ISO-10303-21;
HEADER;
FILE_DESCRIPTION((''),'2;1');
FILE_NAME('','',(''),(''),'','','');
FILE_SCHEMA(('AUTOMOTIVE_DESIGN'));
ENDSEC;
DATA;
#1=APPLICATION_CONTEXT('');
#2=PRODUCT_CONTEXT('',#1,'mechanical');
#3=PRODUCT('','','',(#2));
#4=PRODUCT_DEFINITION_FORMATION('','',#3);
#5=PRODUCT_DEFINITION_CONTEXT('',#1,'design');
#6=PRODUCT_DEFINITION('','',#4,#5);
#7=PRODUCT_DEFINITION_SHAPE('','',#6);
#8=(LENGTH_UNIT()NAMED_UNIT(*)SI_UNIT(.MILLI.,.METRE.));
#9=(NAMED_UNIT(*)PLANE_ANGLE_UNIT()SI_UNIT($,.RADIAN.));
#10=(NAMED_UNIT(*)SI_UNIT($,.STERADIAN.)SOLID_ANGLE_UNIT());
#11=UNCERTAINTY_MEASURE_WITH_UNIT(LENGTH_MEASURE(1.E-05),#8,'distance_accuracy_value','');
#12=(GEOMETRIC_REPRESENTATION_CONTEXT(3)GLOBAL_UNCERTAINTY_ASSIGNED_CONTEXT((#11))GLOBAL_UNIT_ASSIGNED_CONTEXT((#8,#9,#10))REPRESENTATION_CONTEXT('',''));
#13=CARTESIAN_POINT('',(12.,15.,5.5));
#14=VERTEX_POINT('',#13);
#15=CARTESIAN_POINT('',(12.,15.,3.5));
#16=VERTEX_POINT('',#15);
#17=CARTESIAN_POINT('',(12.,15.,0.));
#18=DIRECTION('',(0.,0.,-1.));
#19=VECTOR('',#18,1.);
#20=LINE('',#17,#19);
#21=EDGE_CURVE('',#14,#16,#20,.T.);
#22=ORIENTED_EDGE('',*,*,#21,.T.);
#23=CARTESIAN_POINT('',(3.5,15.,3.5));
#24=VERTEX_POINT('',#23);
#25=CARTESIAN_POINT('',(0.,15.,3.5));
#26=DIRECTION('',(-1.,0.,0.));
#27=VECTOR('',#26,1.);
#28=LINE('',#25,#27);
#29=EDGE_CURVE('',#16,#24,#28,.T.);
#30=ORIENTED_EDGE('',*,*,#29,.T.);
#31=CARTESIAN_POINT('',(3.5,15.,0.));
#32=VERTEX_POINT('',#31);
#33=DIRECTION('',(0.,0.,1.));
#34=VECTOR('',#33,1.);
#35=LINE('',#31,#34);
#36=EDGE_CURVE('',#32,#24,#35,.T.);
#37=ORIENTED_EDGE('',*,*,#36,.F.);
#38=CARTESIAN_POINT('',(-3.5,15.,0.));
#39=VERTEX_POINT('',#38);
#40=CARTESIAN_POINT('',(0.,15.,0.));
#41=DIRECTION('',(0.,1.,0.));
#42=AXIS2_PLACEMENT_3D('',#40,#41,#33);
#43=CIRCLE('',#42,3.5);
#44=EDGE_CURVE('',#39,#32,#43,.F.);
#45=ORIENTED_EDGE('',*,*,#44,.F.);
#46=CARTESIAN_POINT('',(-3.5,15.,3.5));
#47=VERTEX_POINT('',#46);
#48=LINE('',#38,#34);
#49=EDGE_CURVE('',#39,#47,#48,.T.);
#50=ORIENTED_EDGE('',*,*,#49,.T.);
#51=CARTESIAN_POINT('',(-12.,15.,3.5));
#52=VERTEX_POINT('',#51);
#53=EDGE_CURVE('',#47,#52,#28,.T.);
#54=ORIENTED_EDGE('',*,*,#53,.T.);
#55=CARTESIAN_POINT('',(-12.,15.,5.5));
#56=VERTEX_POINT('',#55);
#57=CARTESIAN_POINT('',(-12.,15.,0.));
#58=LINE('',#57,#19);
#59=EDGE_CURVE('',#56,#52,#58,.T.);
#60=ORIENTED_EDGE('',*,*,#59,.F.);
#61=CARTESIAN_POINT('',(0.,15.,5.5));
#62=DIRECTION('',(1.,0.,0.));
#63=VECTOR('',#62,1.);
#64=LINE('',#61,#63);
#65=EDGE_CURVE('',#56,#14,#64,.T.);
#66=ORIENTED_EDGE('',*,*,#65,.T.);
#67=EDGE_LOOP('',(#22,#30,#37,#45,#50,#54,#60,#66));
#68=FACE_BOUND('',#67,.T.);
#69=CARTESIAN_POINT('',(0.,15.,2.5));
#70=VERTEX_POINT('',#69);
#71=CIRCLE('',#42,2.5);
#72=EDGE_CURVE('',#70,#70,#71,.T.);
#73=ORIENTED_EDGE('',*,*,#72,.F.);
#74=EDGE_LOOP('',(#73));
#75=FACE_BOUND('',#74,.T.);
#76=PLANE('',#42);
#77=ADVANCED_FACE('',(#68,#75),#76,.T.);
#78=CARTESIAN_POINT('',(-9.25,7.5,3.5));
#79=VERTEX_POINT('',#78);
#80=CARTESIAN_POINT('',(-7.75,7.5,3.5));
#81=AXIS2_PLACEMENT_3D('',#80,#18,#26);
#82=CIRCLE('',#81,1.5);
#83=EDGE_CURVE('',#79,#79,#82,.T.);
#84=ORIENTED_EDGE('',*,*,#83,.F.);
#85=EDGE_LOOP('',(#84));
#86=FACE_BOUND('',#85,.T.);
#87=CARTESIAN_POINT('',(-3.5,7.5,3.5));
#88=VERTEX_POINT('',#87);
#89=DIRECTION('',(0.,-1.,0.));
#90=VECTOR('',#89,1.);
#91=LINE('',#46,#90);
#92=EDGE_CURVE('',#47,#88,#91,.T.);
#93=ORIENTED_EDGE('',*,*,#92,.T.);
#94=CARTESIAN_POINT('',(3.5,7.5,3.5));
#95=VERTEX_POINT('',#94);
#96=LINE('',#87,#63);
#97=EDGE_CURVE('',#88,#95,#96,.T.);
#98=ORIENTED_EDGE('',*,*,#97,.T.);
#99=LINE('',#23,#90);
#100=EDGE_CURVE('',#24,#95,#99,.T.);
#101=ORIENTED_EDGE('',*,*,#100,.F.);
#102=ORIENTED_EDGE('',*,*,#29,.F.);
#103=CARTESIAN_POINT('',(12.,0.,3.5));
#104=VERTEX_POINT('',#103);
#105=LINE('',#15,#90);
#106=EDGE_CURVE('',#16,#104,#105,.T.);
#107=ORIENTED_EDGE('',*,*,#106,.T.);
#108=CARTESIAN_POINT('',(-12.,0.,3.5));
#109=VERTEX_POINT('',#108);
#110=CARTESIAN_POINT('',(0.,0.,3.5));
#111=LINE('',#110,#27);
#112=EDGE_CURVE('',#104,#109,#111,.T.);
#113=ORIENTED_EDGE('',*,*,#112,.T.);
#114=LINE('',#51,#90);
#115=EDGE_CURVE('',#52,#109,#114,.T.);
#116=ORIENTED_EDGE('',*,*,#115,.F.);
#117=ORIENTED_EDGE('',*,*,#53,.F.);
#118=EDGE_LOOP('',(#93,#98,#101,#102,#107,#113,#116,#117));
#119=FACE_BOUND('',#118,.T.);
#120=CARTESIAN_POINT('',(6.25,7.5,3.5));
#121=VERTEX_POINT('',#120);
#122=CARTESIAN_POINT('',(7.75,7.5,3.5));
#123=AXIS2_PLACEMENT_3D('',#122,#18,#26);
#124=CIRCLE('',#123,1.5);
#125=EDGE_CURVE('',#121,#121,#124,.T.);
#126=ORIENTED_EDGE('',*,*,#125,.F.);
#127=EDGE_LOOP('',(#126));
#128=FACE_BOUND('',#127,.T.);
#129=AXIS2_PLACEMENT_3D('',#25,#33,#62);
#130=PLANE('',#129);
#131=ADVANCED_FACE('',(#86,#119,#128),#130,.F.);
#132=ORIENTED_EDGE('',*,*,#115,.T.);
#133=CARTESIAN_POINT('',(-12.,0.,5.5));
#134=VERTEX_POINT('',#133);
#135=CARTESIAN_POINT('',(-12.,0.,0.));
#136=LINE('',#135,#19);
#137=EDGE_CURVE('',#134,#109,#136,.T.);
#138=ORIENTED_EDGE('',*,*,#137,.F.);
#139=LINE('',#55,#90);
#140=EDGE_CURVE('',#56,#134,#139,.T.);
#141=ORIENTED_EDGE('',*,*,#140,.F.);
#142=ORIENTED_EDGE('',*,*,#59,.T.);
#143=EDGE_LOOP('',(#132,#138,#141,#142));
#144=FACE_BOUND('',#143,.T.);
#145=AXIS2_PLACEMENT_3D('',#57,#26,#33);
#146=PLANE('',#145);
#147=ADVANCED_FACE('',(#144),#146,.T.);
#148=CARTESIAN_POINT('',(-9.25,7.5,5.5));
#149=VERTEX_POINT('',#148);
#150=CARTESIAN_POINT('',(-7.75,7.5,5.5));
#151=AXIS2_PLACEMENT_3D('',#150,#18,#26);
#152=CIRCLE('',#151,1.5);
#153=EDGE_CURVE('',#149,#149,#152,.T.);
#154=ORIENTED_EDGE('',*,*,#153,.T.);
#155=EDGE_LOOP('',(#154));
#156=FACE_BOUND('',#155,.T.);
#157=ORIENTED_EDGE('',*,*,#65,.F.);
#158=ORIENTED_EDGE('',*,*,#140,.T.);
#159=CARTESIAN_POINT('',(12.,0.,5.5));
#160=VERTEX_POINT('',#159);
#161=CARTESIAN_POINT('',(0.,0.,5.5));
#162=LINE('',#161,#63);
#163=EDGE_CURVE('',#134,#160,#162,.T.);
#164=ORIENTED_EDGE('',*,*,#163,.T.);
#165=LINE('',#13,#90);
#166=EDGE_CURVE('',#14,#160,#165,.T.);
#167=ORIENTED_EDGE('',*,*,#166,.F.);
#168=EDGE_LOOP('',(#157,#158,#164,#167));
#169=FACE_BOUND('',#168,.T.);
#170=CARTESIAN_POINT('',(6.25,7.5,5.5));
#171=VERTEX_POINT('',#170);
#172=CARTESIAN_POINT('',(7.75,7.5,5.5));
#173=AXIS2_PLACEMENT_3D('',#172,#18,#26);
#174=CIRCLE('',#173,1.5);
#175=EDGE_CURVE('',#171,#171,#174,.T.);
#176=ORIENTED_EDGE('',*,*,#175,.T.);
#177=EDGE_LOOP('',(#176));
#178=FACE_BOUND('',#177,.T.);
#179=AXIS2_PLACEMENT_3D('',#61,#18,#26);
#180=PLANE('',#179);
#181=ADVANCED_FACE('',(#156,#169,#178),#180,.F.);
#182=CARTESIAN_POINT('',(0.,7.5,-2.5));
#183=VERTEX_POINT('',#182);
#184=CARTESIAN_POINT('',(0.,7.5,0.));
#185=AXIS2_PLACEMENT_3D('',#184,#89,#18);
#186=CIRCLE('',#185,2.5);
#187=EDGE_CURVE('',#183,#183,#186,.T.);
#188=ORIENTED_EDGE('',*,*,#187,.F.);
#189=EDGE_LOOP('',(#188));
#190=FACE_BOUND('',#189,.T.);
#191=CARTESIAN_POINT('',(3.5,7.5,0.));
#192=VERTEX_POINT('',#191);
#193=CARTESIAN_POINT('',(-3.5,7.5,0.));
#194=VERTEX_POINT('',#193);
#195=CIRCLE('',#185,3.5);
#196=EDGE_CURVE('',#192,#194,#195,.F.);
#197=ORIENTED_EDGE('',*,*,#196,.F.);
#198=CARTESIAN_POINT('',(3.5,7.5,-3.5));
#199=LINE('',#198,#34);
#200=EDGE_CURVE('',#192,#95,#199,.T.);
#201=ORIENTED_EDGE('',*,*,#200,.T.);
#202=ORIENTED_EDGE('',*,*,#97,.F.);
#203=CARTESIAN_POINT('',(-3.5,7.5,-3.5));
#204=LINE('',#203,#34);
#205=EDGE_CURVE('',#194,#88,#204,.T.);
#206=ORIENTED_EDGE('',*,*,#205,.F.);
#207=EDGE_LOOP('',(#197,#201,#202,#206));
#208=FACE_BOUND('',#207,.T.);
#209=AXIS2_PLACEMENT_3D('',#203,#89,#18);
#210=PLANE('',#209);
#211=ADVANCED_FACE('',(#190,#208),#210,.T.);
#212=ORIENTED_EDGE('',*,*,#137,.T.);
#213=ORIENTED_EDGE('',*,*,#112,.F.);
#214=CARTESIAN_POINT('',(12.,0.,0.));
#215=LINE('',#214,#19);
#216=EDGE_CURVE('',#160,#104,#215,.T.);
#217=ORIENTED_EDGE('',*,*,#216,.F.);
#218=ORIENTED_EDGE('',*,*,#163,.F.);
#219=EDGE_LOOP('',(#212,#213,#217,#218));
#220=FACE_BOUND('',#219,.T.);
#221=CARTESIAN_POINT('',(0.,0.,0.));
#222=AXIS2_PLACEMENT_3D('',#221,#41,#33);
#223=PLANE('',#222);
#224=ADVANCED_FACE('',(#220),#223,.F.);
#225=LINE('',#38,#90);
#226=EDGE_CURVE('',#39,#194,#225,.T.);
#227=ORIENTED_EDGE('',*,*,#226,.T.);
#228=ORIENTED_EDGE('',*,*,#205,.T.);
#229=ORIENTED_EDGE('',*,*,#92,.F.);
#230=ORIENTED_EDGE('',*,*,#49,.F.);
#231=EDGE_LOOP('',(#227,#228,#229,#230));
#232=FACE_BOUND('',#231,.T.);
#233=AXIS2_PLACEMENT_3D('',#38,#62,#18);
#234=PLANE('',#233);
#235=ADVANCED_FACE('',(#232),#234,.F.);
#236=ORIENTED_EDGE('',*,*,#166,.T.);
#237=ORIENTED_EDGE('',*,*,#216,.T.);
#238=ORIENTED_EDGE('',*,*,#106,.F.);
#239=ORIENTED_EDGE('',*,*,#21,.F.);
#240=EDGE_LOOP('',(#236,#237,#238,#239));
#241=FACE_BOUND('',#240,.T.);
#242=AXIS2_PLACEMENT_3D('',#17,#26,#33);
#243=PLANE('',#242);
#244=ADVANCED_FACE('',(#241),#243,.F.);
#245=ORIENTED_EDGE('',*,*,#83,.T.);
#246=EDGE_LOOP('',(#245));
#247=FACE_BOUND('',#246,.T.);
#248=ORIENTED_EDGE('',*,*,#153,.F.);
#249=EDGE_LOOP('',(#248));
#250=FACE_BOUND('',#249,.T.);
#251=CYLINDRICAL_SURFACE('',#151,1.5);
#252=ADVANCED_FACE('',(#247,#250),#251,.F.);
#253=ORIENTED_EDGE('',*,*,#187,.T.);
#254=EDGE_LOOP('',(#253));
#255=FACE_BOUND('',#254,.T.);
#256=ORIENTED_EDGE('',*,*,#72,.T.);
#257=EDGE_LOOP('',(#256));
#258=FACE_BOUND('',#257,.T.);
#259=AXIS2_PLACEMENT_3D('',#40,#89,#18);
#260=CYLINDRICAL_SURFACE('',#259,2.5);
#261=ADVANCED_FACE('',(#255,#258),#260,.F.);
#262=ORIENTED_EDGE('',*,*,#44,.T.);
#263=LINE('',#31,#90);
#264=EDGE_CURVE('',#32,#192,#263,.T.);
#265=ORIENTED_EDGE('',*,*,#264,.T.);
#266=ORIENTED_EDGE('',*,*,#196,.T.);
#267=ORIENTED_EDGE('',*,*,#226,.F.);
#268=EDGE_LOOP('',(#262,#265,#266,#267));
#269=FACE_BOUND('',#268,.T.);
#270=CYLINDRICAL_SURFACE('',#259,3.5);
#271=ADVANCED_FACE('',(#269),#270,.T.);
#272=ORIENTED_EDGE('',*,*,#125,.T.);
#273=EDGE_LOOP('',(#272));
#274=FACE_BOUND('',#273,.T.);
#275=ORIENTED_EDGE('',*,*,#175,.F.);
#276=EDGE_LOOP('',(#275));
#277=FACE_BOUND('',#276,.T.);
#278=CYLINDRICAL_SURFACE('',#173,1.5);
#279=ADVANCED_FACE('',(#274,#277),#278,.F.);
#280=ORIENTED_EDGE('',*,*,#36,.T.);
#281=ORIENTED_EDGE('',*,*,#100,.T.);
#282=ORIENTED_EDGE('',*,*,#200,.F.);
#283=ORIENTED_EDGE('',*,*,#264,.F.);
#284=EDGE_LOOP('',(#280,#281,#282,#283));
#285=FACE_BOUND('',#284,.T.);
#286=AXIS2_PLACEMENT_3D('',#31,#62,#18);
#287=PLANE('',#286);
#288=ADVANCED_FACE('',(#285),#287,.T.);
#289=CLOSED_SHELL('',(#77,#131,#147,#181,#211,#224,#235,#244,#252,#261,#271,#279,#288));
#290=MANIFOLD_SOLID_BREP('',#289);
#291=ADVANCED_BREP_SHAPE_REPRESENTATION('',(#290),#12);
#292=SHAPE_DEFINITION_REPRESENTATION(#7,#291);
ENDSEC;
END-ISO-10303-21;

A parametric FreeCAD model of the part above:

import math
import FreeCAD as App
import Part
import Sketcher


def add_polygon(sketch, points):
    """Adds a closed chain of lines whose ends are joined by coincident constraints."""
    first, n = sketch.GeometryCount, len(points)
    for a, b in zip(points, points[1:] + points[:1]):
        sketch.addGeometry(Part.LineSegment(App.Vector(*a, 0), App.Vector(*b, 0)), False)
    for i in range(n):
        sketch.addConstraint(Sketcher.Constraint("Coincident", first + i, 2, first + (i + 1) % n, 1))

doc = App.newDocument("Part")
body = doc.addObject("PartDesign::Body", "Body")

# Sketch on XZ plane
sketch1 = body.newObject("Sketcher::SketchObject", "Sketch")
sketch1.AttachmentSupport = (doc.getObject("XZ_Plane"), [""])
sketch1.MapMode = "FlatFace"
sketch1.addGeometry([
    Part.ArcOfCircle(Part.Circle(App.Vector(0, 0, 0), App.Vector(0, 0, 1), 3.5), math.radians(-90), math.radians(0)),  # 0
    Part.ArcOfCircle(Part.Circle(App.Vector(0, 0, 0), App.Vector(0, 0, 1), 3.5), math.radians(-180), math.radians(-90)),  # 1
    Part.LineSegment(App.Vector(-3.5, 0, 0), App.Vector(-3.5, 3.5, 0)),  # 2
    Part.LineSegment(App.Vector(-3.5, 3.5, 0), App.Vector(-12, 3.5, 0)),  # 3
    Part.LineSegment(App.Vector(-12, 3.5, 0), App.Vector(-12, 5.5, 0)),  # 4
    Part.LineSegment(App.Vector(-12, 5.5, 0), App.Vector(12, 5.5, 0)),  # 5
    Part.LineSegment(App.Vector(12, 5.5, 0), App.Vector(12, 3.5, 0)),  # 6
    Part.LineSegment(App.Vector(12, 3.5, 0), App.Vector(3.5, 3.5, 0)),  # 7
    Part.LineSegment(App.Vector(3.5, 3.5, 0), App.Vector(3.5, 0, 0)),  # 8
    Part.ArcOfCircle(Part.Circle(App.Vector(0, 0, 0), App.Vector(0, 0, 1), 2.5), math.radians(-90), math.radians(0)),  # 9
    Part.ArcOfCircle(Part.Circle(App.Vector(0, 0, 0), App.Vector(0, 0, 1), 2.5), math.radians(0), math.radians(90)),  # 10
    Part.ArcOfCircle(Part.Circle(App.Vector(0, 0, 0), App.Vector(0, 0, 1), 2.5), math.radians(90), math.radians(180)),  # 11
    Part.ArcOfCircle(Part.Circle(App.Vector(0, 0, 0), App.Vector(0, 0, 1), 2.5), math.radians(180), math.radians(270)),  # 12
], False)
sketch1.addConstraint([
    Sketcher.Constraint("Tangent", 0, 1, 1, 2),
    Sketcher.Constraint("Tangent", 1, 1, 2, 1),
    Sketcher.Constraint("Coincident", 2, 2, 3, 1),
    Sketcher.Constraint("Coincident", 3, 2, 4, 1),
    Sketcher.Constraint("Coincident", 4, 2, 5, 1),
    Sketcher.Constraint("Coincident", 5, 2, 6, 1),
    Sketcher.Constraint("Coincident", 6, 2, 7, 1),
    Sketcher.Constraint("Coincident", 7, 2, 8, 1),
    Sketcher.Constraint("Tangent", 8, 2, 0, 2),
    Sketcher.Constraint("Tangent", 9, 2, 10, 1),
    Sketcher.Constraint("Tangent", 10, 2, 11, 1),
    Sketcher.Constraint("Tangent", 11, 2, 12, 1),
    Sketcher.Constraint("Tangent", 12, 2, 9, 1),
    Sketcher.Constraint("Vertical", 2),
    Sketcher.Constraint("Horizontal", 3),
    Sketcher.Constraint("Vertical", 4),
    Sketcher.Constraint("Horizontal", 5),
    Sketcher.Constraint("Vertical", 6),
    Sketcher.Constraint("Horizontal", 7),
    Sketcher.Constraint("Vertical", 8),
    Sketcher.Constraint("Coincident", 0, 3, -1, 1),
    Sketcher.Constraint("Coincident", 9, 3, -1, 1),
    Sketcher.Constraint("Equal", 0, 1),
    Sketcher.Constraint("Equal", 9, 10),
    Sketcher.Constraint("Symmetric", 3, 2, 6, 2, -2),
    Sketcher.Constraint("PointOnObject", 0, 1, -2),
    Sketcher.Constraint("PointOnObject", 9, 2, -1),
    Sketcher.Constraint("PointOnObject", 10, 2, -2),
    Sketcher.Constraint("PointOnObject", 11, 2, -1),
    Sketcher.Constraint("PointOnObject", 12, 2, -2),
    Sketcher.Constraint("Radius", 0, 3.5),
    Sketcher.Constraint("Radius", 9, 2.5),
    Sketcher.Constraint("DistanceX", 5, 1, 5, 2, 24.0),
    Sketcher.Constraint("DistanceY", 4, 1, 4, 2, 2.0),
    Sketcher.Constraint("DistanceY", 2, 1, 2, 2, 3.5),
])
pad1 = body.newObject("PartDesign::Pad", "Pad")
pad1.Profile = sketch1
pad1.Length = 15
pad1.Reversed = True

# Sketch on XY plane
sketch2 = body.newObject("Sketcher::SketchObject", "Sketch001")
sketch2.AttachmentSupport = (doc.getObject("XY_Plane"), [""])
sketch2.MapMode = "FlatFace"
sketch2.AttachmentOffset = App.Placement(App.Vector(0, 0, 3.5), App.Rotation())
sketch2.addGeometry([
    Part.ArcOfCircle(Part.Circle(App.Vector(7.7, 7.5, 0), App.Vector(0, 0, 1), 1.5), math.radians(90), math.radians(180)),  # 0
    Part.ArcOfCircle(Part.Circle(App.Vector(7.8, 7.5, 0), App.Vector(0, 0, 1), 1.5), math.radians(-90), math.radians(90)),  # 1
    Part.ArcOfCircle(Part.Circle(App.Vector(7.7, 7.5, 0), App.Vector(0, 0, 1), 1.5), math.radians(180), math.radians(270)),  # 2
    Part.ArcOfCircle(Part.Circle(App.Vector(-7.8, 7.5, 0), App.Vector(0, 0, 1), 1.5), math.radians(90), math.radians(180)),  # 3
    Part.ArcOfCircle(Part.Circle(App.Vector(-7.8, 7.5, 0), App.Vector(0, 0, 1), 1.5), math.radians(-90), math.radians(90)),  # 4
    Part.ArcOfCircle(Part.Circle(App.Vector(-7.8, 7.5, 0), App.Vector(0, 0, 1), 1.5), math.radians(180), math.radians(270)),  # 5
], False)
sketch2.addConstraint([
    Sketcher.Constraint("Tangent", 0, 1, 1, 2),
    Sketcher.Constraint("Tangent", 1, 1, 2, 2),
    Sketcher.Constraint("Tangent", 2, 1, 0, 2),
    Sketcher.Constraint("Tangent", 3, 1, 4, 2),
    Sketcher.Constraint("Tangent", 4, 1, 5, 2),
    Sketcher.Constraint("Tangent", 5, 1, 3, 2),
    Sketcher.Constraint("Equal", 2, 3),
    Sketcher.Constraint("Symmetric", 0, 3, 3, 3, -2),
    Sketcher.Constraint("Horizontal", 5, 3, 2, 1),
    Sketcher.Constraint("Horizontal", 2, 1, 5, 1),
    Sketcher.Constraint("Vertical", 2, 3, 0, 1),
    Sketcher.Constraint("Vertical", 0, 1, 1, 1),
    Sketcher.Constraint("Vertical", 5, 3, 3, 1),
    Sketcher.Constraint("Vertical", 3, 1, 4, 1),
    Sketcher.Constraint("Radius", 0, 1.5),
    Sketcher.Constraint("DistanceY", -1, 1, 0, 1, 9.0),
    Sketcher.Constraint("DistanceX", 3, 1, 2, 1, 14.0),
])
pocket1 = body.newObject("PartDesign::Pocket", "Pocket")
pocket1.Profile = sketch2
pocket1.Type = "ThroughAll"
pocket1.Reversed = True

# Sketch on XY plane
sketch3 = body.newObject("Sketcher::SketchObject", "Sketch002")
sketch3.AttachmentSupport = (doc.getObject("XY_Plane"), [""])
sketch3.MapMode = "FlatFace"
sketch3.AttachmentOffset = App.Placement(App.Vector(0, 0, 3.5), App.Rotation())
add_polygon(sketch3, [(4, 8), (4, 0), (-4, 0), (-4, 8)])  # lines 0-3
sketch3.addConstraint([
    Sketcher.Constraint("Vertical", 0),
    Sketcher.Constraint("Horizontal", 1),
    Sketcher.Constraint("Vertical", 2),
    Sketcher.Constraint("Horizontal", 3),
    Sketcher.Constraint("Symmetric", 0, 2, 1, 2, -1, 1),
    Sketcher.Constraint("DistanceX", 1, 2, 1, 1, 7.0),
    Sketcher.Constraint("DistanceY", 0, 2, 0, 1, 7.5),
])
pocket2 = body.newObject("PartDesign::Pocket", "Pocket001")
pocket2.Profile = sketch3
pocket2.Type = "ThroughAll"

doc.recompute()
